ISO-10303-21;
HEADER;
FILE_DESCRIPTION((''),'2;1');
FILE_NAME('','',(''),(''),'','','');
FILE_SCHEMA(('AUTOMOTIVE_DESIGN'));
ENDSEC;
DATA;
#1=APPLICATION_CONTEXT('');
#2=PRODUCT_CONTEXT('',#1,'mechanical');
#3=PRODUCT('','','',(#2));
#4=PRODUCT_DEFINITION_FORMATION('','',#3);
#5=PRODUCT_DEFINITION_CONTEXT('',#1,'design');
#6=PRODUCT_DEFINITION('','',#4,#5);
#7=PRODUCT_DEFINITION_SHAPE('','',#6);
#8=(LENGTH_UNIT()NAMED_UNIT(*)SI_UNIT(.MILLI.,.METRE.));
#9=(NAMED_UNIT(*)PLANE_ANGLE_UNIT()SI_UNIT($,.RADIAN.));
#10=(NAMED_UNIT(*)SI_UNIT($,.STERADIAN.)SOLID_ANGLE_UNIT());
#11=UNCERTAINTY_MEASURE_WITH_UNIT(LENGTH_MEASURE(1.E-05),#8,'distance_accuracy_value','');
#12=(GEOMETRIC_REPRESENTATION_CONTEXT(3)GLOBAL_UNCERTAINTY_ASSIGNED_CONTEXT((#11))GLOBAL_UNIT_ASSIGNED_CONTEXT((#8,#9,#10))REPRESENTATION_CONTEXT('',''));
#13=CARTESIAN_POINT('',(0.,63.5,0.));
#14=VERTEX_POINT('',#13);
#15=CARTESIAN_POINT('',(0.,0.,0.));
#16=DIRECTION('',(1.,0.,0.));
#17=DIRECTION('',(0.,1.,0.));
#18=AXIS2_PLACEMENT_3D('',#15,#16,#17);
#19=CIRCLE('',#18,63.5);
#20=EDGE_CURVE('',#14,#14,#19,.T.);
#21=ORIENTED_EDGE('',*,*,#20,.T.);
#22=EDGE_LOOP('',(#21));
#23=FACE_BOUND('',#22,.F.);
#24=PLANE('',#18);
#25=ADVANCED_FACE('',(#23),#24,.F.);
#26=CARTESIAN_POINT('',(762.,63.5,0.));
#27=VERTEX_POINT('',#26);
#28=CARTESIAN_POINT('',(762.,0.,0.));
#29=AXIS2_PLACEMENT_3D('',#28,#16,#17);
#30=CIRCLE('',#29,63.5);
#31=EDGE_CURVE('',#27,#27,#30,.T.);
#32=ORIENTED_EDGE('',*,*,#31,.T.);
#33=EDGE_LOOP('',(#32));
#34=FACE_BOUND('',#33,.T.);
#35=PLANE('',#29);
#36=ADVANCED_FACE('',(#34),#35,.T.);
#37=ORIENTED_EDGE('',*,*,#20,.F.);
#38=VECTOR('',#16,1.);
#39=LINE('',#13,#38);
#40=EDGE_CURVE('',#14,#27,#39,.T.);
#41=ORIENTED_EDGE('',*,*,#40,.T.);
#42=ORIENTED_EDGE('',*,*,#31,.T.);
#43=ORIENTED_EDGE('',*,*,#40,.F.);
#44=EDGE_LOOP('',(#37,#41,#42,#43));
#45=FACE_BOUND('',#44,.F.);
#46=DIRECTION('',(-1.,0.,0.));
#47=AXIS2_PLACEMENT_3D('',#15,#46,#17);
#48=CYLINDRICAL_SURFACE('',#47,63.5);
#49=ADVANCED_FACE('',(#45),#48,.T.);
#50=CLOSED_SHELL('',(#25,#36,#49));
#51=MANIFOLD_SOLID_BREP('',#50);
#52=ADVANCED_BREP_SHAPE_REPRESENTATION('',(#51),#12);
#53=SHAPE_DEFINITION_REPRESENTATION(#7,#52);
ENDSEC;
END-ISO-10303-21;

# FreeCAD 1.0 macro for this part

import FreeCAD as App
import Part
import Sketcher
Q = App.Units.Quantity

doc = App.newDocument("Part")
body = doc.addObject("PartDesign::Body", "Body")

# Sketch on YZ plane
sketch1 = body.newObject("Sketcher::SketchObject", "Sketch")
sketch1.AttachmentSupport = (doc.getObject("YZ_Plane"), [""])
sketch1.MapMode = "FlatFace"
sketch1.addGeometry(Part.Circle(App.Vector(0, 0, 0), App.Vector(0, 0, 1), 63.5), False)
sketch1.addConstraint(Sketcher.Constraint("Coincident", 0, 3, -1, 1))
sketch1.addConstraint(Sketcher.Constraint("Diameter", 0, Q("5 in")))
pad1 = body.newObject("PartDesign::Pad", "Pad")
pad1.Profile = sketch1
pad1.Length = Q("30 in")

doc.recompute()
